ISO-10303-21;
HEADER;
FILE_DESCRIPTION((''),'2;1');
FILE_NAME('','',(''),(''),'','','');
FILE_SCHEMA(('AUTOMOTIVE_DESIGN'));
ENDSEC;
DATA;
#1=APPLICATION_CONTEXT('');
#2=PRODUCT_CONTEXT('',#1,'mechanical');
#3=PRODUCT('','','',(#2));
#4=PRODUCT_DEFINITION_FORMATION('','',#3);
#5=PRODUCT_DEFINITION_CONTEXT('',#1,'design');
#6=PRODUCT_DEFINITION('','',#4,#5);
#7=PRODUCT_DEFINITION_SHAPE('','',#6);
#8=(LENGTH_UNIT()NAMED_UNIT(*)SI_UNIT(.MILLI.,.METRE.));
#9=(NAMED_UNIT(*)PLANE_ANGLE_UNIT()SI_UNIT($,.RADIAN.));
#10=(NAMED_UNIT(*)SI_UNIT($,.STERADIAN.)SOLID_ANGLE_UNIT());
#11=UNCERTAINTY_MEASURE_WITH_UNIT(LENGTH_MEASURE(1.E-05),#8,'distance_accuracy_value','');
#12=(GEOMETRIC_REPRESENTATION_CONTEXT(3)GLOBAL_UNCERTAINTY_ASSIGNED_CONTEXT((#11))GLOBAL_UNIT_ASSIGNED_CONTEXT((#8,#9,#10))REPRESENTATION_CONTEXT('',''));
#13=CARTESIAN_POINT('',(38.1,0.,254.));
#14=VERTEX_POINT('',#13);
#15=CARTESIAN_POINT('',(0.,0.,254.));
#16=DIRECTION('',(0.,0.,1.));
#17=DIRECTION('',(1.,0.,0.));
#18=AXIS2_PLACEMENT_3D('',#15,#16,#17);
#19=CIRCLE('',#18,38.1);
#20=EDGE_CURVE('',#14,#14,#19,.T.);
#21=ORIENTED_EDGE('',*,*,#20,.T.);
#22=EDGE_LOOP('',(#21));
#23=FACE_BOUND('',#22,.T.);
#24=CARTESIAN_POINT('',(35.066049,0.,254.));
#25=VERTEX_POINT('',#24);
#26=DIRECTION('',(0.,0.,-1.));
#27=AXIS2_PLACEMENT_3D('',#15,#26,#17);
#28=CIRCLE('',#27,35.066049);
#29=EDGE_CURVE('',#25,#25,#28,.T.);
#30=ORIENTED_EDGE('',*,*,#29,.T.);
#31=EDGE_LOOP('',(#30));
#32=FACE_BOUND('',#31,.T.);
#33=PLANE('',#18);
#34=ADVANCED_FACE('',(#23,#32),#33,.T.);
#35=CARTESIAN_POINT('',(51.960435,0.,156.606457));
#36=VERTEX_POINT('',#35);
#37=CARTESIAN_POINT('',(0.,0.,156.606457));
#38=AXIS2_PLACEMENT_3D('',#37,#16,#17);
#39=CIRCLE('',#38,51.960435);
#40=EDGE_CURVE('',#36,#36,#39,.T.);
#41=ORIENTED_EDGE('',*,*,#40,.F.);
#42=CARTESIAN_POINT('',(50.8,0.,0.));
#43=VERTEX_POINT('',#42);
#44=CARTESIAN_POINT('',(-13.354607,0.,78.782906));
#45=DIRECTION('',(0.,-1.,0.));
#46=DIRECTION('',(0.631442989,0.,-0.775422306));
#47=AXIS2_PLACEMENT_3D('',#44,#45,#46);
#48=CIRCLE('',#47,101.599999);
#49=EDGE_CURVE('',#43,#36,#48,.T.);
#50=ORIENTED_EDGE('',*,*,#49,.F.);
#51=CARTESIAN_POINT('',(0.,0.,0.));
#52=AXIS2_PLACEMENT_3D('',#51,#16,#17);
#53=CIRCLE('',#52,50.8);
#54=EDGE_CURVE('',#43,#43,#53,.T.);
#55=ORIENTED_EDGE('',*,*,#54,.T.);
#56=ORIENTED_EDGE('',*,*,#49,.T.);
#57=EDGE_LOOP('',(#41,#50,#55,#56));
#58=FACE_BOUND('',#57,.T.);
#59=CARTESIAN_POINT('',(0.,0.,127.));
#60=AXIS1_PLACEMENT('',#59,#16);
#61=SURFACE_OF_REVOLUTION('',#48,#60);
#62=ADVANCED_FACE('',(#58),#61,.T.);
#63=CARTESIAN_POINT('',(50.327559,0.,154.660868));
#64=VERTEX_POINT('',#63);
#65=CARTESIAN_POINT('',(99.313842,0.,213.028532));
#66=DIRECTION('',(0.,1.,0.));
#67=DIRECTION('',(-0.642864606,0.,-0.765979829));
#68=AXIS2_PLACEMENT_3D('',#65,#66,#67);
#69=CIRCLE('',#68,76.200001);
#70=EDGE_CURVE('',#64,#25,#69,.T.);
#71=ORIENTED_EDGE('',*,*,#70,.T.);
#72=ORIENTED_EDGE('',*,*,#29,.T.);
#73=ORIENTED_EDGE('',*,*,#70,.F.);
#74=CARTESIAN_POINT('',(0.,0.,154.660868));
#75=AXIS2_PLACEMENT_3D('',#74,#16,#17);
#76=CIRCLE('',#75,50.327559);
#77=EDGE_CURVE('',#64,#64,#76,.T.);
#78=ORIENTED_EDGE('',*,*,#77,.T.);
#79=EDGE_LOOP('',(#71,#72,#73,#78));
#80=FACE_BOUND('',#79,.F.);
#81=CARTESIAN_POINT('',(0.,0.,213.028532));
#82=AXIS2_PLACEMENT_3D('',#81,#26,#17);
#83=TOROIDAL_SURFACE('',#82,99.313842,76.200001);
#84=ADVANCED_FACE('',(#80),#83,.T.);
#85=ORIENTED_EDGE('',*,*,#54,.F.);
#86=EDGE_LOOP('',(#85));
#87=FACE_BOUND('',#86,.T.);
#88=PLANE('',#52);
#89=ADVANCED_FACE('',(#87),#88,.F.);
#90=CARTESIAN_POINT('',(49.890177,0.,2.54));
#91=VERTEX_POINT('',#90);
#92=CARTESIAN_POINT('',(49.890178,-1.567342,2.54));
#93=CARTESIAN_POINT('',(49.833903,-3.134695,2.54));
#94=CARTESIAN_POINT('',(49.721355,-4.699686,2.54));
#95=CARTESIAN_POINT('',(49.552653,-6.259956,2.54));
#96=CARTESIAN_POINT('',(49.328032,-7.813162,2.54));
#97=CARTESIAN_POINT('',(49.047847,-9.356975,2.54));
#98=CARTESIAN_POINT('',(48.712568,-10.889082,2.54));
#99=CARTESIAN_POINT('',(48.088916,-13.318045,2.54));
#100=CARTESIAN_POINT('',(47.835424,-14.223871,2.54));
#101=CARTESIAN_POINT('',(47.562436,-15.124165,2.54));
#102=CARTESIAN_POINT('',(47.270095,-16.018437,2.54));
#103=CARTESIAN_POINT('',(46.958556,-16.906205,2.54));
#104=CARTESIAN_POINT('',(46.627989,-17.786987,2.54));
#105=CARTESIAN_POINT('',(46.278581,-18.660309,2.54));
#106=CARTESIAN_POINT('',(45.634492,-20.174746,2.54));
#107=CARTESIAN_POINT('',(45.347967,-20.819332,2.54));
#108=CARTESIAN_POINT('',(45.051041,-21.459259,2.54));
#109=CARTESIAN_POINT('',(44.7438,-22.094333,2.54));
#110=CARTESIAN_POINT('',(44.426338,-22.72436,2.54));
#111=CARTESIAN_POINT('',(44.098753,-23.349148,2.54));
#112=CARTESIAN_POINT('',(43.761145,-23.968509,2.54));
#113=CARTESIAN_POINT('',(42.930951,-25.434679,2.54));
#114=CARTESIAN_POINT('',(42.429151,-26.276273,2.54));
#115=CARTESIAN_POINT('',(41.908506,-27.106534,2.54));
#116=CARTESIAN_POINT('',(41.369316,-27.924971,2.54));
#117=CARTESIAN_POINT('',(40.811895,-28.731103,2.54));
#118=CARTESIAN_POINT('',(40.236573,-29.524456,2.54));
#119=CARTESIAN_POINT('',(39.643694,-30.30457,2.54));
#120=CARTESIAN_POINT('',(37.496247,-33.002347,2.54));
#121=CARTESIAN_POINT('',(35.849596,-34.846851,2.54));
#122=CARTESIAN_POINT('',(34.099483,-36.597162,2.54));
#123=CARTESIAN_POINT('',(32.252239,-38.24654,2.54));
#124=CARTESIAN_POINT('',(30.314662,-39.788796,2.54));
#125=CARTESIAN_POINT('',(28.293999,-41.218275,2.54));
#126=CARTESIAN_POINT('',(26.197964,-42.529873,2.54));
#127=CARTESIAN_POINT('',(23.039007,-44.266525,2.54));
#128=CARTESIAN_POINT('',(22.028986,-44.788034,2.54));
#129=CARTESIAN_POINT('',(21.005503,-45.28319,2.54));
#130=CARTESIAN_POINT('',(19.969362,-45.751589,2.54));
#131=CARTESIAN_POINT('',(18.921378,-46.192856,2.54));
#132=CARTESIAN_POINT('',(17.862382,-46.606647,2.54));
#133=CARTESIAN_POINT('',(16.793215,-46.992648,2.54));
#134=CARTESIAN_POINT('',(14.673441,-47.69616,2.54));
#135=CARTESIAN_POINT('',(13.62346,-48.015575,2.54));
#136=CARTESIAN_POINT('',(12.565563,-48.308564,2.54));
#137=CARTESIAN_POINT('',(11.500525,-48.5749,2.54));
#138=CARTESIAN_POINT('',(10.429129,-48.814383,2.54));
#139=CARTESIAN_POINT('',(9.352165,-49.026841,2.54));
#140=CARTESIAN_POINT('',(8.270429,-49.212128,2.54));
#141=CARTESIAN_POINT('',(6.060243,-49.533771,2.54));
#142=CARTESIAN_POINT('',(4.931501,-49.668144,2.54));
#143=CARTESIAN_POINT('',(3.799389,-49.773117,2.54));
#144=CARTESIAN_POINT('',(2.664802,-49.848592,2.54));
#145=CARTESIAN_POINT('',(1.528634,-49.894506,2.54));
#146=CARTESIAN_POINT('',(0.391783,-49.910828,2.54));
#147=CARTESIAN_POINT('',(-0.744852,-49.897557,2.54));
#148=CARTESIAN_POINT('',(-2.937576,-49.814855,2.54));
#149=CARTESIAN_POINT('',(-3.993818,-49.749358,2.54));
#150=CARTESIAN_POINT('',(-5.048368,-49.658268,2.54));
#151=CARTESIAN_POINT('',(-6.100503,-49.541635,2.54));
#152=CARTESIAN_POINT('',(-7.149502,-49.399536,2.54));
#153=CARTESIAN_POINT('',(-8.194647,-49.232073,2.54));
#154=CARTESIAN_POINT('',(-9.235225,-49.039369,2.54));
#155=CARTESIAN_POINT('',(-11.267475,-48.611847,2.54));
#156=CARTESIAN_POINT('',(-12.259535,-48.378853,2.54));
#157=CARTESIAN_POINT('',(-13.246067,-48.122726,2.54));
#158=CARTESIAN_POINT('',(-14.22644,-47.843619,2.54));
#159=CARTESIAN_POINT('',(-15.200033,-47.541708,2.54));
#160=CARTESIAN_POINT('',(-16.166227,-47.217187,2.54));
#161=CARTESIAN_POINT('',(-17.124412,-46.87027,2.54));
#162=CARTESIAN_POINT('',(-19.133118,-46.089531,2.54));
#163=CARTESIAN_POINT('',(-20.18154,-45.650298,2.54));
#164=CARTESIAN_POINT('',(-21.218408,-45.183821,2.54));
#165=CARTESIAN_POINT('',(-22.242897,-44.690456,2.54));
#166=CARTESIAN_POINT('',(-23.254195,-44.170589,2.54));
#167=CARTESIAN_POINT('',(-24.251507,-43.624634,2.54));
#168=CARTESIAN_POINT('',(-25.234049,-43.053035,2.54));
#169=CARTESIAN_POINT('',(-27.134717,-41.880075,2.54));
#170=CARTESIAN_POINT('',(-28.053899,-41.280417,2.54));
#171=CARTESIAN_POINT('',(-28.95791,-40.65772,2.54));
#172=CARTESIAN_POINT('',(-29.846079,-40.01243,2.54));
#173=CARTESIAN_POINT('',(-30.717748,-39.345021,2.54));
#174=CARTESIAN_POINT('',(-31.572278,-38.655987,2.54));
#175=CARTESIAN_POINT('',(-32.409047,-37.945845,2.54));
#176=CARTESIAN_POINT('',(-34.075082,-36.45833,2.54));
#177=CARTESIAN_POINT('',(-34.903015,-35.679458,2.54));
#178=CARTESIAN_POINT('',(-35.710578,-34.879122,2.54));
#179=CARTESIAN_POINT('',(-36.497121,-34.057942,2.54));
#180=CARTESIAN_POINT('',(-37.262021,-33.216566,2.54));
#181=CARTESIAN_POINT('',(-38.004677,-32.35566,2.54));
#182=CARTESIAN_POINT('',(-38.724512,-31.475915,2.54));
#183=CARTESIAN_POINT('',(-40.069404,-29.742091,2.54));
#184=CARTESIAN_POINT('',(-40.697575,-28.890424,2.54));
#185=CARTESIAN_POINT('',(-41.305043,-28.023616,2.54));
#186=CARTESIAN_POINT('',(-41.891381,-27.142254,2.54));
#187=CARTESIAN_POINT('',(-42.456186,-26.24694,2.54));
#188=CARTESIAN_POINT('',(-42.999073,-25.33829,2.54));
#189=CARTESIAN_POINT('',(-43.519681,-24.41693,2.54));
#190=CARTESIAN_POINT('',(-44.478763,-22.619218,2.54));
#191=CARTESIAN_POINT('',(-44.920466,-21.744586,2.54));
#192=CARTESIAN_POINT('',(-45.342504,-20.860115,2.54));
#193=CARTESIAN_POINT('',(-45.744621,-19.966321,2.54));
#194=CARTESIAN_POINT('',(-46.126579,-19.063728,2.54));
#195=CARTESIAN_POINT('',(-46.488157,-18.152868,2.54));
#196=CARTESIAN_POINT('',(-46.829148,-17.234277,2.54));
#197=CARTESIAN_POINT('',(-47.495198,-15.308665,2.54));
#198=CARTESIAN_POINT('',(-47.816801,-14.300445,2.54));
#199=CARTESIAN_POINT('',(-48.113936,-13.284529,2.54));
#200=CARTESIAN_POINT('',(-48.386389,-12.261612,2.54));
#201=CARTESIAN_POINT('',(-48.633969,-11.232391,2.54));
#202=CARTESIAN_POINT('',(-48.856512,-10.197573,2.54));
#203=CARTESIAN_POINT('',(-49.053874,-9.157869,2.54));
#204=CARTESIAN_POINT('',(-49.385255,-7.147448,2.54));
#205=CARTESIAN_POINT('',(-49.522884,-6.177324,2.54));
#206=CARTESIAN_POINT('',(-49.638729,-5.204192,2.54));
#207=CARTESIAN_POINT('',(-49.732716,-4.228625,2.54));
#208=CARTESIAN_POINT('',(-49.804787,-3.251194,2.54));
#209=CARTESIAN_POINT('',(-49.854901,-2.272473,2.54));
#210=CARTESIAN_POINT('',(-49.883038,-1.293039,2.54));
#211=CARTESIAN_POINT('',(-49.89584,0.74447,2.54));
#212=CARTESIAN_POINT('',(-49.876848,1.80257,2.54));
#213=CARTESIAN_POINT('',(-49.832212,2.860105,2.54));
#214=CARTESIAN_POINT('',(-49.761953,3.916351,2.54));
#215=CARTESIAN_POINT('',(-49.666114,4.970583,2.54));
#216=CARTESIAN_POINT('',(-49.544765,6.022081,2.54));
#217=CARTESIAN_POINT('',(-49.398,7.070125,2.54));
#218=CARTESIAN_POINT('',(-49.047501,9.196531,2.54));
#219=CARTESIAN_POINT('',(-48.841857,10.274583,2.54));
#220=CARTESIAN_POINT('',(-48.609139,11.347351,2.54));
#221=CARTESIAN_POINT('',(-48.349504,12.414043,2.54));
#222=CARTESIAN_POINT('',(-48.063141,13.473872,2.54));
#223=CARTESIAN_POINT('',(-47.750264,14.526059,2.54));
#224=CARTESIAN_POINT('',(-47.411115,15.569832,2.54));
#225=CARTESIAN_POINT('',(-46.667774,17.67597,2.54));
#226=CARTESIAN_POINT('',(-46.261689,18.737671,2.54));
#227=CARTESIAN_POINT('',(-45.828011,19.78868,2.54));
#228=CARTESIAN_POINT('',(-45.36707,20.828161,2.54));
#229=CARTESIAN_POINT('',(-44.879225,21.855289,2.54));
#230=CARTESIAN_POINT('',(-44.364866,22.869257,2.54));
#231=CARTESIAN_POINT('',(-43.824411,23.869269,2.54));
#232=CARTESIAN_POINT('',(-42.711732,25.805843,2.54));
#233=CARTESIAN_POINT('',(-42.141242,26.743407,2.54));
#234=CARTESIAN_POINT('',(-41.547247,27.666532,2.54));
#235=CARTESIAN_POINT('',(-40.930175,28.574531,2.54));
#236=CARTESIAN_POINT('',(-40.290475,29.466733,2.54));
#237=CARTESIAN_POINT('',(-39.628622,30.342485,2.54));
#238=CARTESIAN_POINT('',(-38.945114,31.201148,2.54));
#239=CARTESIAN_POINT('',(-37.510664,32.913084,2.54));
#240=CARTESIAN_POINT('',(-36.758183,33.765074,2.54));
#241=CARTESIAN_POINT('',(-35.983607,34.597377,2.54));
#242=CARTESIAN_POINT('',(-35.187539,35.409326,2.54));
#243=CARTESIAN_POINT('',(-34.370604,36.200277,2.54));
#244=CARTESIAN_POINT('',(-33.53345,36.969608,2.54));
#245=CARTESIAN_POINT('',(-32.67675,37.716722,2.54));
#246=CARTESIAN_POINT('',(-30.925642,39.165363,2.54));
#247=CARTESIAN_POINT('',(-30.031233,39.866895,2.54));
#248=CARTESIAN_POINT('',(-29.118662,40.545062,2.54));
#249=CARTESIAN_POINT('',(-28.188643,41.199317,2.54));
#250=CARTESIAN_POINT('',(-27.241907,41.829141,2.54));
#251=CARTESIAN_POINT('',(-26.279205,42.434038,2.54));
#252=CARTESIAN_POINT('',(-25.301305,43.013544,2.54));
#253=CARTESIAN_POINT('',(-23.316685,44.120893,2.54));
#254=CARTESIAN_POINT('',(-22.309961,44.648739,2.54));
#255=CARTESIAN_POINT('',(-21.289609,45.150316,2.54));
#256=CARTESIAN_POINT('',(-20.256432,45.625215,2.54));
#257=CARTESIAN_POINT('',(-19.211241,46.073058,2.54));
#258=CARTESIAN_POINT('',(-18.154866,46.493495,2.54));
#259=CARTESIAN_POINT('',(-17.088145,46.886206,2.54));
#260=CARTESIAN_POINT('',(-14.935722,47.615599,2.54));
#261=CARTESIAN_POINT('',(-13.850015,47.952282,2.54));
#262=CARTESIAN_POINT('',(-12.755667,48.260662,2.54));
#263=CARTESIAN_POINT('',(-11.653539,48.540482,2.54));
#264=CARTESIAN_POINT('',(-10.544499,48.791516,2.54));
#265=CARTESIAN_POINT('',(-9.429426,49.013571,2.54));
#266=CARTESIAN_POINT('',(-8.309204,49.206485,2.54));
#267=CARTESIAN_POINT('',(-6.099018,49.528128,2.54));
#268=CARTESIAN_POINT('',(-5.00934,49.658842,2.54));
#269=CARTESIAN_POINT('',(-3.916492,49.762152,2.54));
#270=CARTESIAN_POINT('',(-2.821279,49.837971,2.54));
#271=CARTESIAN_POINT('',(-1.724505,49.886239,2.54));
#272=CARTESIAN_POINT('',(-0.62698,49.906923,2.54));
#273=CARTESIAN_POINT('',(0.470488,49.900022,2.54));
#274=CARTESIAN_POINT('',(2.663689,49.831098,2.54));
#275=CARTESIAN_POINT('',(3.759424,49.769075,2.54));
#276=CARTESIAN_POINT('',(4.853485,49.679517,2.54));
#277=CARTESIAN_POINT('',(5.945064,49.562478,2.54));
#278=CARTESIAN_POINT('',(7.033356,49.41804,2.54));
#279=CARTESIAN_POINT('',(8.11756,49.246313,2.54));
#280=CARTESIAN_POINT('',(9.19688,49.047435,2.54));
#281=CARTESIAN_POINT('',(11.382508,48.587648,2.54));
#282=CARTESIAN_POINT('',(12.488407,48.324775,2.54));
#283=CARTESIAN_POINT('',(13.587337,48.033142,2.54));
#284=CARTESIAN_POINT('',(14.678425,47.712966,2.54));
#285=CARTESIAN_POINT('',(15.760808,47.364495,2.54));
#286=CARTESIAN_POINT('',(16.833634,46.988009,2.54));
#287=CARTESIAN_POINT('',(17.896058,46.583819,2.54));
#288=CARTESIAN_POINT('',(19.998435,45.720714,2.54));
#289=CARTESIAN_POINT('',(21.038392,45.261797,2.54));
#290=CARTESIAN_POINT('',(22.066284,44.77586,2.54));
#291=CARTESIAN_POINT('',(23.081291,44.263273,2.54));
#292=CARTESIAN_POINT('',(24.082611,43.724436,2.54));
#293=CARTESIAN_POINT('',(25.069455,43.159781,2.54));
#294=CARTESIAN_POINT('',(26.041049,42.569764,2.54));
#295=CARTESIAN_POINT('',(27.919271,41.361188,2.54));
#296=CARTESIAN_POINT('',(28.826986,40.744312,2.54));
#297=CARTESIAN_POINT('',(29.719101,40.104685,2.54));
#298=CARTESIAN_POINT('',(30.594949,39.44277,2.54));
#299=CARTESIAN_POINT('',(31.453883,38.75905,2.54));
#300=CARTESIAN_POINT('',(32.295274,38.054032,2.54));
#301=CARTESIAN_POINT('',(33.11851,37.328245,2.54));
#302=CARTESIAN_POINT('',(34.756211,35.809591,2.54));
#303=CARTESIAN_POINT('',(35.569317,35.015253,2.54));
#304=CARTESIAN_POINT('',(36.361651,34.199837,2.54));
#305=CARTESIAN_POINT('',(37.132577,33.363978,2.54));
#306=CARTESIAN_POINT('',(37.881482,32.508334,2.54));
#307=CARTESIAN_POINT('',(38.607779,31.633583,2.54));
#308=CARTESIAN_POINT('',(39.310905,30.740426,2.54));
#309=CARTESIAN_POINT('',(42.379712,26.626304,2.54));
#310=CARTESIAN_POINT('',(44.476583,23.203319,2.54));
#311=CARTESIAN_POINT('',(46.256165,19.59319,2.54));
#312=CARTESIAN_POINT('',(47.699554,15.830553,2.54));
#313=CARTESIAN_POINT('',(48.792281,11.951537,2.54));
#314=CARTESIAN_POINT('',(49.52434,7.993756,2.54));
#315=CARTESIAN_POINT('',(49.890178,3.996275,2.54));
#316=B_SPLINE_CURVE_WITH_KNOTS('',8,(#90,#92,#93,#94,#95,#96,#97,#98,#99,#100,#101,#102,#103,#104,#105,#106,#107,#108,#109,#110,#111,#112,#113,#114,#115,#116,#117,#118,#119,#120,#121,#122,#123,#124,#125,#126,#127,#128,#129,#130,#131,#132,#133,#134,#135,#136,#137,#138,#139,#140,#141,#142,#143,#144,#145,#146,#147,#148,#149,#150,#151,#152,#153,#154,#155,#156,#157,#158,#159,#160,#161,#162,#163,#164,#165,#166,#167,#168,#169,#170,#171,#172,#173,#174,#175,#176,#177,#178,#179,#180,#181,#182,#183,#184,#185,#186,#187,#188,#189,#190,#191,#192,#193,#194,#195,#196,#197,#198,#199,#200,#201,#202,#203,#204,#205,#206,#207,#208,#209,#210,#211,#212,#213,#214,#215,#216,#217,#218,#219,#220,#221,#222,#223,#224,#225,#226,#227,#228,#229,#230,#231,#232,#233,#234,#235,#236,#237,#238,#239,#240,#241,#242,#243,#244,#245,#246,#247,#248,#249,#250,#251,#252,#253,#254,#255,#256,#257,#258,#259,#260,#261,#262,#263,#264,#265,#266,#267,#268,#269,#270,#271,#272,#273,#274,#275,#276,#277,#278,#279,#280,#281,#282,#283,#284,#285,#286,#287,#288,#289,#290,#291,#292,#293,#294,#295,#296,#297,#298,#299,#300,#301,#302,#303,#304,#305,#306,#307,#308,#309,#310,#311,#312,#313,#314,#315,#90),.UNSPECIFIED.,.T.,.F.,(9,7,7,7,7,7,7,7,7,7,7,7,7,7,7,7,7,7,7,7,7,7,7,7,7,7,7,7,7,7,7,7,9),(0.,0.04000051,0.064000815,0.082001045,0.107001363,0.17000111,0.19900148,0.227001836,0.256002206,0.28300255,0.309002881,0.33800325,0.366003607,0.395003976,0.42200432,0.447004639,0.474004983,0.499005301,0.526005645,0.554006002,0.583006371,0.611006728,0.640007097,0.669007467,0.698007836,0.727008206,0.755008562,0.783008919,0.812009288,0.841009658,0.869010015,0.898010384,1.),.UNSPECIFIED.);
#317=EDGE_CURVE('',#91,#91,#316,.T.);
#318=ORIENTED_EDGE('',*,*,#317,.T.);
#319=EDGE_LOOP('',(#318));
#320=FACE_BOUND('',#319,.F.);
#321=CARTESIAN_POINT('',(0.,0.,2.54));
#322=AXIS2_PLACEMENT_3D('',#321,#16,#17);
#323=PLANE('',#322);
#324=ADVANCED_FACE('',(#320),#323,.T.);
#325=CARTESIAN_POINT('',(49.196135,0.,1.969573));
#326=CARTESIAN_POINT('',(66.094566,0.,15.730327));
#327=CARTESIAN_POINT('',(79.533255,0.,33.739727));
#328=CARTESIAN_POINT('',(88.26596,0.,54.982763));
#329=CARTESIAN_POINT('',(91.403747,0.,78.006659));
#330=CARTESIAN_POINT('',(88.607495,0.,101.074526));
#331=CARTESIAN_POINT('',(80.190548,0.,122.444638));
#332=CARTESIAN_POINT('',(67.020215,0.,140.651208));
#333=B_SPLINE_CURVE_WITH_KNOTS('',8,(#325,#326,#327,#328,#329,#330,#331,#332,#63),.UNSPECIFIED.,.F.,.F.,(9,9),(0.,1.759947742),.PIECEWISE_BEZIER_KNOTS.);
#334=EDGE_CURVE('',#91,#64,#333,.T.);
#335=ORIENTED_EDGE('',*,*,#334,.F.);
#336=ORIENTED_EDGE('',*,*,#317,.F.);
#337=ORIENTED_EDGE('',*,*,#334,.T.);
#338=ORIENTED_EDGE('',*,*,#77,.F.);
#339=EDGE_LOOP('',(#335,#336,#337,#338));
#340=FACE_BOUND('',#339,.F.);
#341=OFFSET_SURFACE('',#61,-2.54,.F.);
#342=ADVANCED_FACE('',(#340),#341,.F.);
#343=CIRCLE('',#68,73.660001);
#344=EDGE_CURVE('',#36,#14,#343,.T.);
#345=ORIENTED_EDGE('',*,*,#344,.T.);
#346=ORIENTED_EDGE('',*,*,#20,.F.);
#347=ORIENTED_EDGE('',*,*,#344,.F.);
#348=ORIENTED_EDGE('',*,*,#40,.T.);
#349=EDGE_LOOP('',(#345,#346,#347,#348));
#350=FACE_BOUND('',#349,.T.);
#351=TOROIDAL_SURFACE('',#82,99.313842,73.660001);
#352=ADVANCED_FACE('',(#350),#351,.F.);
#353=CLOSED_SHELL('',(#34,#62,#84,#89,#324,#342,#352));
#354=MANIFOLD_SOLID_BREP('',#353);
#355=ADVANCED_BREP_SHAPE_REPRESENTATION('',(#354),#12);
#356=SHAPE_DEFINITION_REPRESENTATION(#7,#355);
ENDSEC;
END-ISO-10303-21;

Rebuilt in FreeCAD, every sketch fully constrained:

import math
import FreeCAD as App
import Part
import Sketcher
Q = App.Units.Quantity


def faces_at(feature, points):
    """Names of the faces that lie closest to the given points."""
    faces = feature.Shape.Faces
    near = lambda p: min(range(len(faces)), key=lambda i: faces[i].distToShape(Part.Vertex(*p))[0])
    return sorted({f"Face{near(p) + 1}" for p in points})

doc = App.newDocument("Part")
params = doc.addObject("Spreadsheet::Sheet", "Params")
for row, (alias, value) in enumerate([
    ("sketch1_radius", "4 in"),
    ("sketch1_radius2", "2.9 in"),
    ("sketch1_width", "2 in"),
    ("sketch1_height", "10 in"),
    ("sketch1_width2", "1.5 in"),
    ("revolution_angle", "360 deg"),
    ("thickness_wall", "0.1 in"),
], start=1):
    params.set(f"A{row}", alias)
    params.set(f"B{row}", "=" + value)
    params.setAlias(f"B{row}", alias)

body = doc.addObject("PartDesign::Body", "Body")

sketch1 = body.newObject("Sketcher::SketchObject", "Sketch")
sketch1.AttachmentSupport = (doc.getObject("XZ_Plane"), [""])
sketch1.MapMode = "FlatFace"
sketch1.addGeometry([
    Part.LineSegment(App.Vector(0, 254, 0), App.Vector(0, 0, 0)),
    Part.LineSegment(App.Vector(0, 0, 0), App.Vector(51, 0, 0)),
    Part.ArcOfCircle(Part.Circle(App.Vector(-13, 79, 0), App.Vector(0, 0, 1), 102), math.radians(-51), math.radians(50)),
    Part.ArcOfCircle(Part.Circle(App.Vector(99, 213, 0), App.Vector(0, 0, 1), 74), math.radians(146), math.radians(230)),
    Part.LineSegment(App.Vector(38, 254, 0), App.Vector(0, 254, 0)),
], False)
sketch1.addConstraint([
    Sketcher.Constraint("Coincident", 0, 2, 1, 1),
    Sketcher.Constraint("Coincident", 1, 2, 2, 1),
    Sketcher.Constraint("Tangent", 2, 2, 3, 2),
    Sketcher.Constraint("Coincident", 3, 1, 4, 1),
    Sketcher.Constraint("Coincident", 4, 2, 0, 1),
    Sketcher.Constraint("Vertical", 0),
    Sketcher.Constraint("Horizontal", 1),
    Sketcher.Constraint("Horizontal", 4),
    Sketcher.Constraint("Coincident", 0, 2, -1, 1),
    Sketcher.Constraint("Radius", 2, Q("4 in")),
    Sketcher.Constraint("Radius", 3, Q("2.9 in")),
    Sketcher.Constraint("DistanceX", 1, 1, 1, 2, Q("2 in")),
    Sketcher.Constraint("DistanceY", 0, 2, 0, 1, Q("10 in")),
    Sketcher.Constraint("DistanceX", 4, 2, 4, 1, Q("1.5 in")),
    Sketcher.Constraint("DistanceY", -1, 1, 3, 3, Q("213.028532 mm")),
])
sketch1.setExpression("Constraints[9]", "Params.sketch1_radius")
sketch1.setExpression("Constraints[10]", "Params.sketch1_radius2")
sketch1.setExpression("Constraints[11]", "Params.sketch1_width")
sketch1.setExpression("Constraints[12]", "Params.sketch1_height")
sketch1.setExpression("Constraints[13]", "Params.sketch1_width2")
revolution = body.newObject("PartDesign::Revolution", "Revolution")
revolution.Profile = sketch1
revolution.ReferenceAxis = (sketch1, ["V_Axis"])
revolution.setExpression("Angle", "Params.revolution_angle")
doc.recompute()

thickness = body.newObject("PartDesign::Thickness", "Thickness")
thickness.Base = (revolution, faces_at(revolution, [(0, 0, 254)]))
thickness.setExpression("Value", "Params.thickness_wall")
thickness.Reversed = True
thickness.Join = "Arc"

doc.recompute()
